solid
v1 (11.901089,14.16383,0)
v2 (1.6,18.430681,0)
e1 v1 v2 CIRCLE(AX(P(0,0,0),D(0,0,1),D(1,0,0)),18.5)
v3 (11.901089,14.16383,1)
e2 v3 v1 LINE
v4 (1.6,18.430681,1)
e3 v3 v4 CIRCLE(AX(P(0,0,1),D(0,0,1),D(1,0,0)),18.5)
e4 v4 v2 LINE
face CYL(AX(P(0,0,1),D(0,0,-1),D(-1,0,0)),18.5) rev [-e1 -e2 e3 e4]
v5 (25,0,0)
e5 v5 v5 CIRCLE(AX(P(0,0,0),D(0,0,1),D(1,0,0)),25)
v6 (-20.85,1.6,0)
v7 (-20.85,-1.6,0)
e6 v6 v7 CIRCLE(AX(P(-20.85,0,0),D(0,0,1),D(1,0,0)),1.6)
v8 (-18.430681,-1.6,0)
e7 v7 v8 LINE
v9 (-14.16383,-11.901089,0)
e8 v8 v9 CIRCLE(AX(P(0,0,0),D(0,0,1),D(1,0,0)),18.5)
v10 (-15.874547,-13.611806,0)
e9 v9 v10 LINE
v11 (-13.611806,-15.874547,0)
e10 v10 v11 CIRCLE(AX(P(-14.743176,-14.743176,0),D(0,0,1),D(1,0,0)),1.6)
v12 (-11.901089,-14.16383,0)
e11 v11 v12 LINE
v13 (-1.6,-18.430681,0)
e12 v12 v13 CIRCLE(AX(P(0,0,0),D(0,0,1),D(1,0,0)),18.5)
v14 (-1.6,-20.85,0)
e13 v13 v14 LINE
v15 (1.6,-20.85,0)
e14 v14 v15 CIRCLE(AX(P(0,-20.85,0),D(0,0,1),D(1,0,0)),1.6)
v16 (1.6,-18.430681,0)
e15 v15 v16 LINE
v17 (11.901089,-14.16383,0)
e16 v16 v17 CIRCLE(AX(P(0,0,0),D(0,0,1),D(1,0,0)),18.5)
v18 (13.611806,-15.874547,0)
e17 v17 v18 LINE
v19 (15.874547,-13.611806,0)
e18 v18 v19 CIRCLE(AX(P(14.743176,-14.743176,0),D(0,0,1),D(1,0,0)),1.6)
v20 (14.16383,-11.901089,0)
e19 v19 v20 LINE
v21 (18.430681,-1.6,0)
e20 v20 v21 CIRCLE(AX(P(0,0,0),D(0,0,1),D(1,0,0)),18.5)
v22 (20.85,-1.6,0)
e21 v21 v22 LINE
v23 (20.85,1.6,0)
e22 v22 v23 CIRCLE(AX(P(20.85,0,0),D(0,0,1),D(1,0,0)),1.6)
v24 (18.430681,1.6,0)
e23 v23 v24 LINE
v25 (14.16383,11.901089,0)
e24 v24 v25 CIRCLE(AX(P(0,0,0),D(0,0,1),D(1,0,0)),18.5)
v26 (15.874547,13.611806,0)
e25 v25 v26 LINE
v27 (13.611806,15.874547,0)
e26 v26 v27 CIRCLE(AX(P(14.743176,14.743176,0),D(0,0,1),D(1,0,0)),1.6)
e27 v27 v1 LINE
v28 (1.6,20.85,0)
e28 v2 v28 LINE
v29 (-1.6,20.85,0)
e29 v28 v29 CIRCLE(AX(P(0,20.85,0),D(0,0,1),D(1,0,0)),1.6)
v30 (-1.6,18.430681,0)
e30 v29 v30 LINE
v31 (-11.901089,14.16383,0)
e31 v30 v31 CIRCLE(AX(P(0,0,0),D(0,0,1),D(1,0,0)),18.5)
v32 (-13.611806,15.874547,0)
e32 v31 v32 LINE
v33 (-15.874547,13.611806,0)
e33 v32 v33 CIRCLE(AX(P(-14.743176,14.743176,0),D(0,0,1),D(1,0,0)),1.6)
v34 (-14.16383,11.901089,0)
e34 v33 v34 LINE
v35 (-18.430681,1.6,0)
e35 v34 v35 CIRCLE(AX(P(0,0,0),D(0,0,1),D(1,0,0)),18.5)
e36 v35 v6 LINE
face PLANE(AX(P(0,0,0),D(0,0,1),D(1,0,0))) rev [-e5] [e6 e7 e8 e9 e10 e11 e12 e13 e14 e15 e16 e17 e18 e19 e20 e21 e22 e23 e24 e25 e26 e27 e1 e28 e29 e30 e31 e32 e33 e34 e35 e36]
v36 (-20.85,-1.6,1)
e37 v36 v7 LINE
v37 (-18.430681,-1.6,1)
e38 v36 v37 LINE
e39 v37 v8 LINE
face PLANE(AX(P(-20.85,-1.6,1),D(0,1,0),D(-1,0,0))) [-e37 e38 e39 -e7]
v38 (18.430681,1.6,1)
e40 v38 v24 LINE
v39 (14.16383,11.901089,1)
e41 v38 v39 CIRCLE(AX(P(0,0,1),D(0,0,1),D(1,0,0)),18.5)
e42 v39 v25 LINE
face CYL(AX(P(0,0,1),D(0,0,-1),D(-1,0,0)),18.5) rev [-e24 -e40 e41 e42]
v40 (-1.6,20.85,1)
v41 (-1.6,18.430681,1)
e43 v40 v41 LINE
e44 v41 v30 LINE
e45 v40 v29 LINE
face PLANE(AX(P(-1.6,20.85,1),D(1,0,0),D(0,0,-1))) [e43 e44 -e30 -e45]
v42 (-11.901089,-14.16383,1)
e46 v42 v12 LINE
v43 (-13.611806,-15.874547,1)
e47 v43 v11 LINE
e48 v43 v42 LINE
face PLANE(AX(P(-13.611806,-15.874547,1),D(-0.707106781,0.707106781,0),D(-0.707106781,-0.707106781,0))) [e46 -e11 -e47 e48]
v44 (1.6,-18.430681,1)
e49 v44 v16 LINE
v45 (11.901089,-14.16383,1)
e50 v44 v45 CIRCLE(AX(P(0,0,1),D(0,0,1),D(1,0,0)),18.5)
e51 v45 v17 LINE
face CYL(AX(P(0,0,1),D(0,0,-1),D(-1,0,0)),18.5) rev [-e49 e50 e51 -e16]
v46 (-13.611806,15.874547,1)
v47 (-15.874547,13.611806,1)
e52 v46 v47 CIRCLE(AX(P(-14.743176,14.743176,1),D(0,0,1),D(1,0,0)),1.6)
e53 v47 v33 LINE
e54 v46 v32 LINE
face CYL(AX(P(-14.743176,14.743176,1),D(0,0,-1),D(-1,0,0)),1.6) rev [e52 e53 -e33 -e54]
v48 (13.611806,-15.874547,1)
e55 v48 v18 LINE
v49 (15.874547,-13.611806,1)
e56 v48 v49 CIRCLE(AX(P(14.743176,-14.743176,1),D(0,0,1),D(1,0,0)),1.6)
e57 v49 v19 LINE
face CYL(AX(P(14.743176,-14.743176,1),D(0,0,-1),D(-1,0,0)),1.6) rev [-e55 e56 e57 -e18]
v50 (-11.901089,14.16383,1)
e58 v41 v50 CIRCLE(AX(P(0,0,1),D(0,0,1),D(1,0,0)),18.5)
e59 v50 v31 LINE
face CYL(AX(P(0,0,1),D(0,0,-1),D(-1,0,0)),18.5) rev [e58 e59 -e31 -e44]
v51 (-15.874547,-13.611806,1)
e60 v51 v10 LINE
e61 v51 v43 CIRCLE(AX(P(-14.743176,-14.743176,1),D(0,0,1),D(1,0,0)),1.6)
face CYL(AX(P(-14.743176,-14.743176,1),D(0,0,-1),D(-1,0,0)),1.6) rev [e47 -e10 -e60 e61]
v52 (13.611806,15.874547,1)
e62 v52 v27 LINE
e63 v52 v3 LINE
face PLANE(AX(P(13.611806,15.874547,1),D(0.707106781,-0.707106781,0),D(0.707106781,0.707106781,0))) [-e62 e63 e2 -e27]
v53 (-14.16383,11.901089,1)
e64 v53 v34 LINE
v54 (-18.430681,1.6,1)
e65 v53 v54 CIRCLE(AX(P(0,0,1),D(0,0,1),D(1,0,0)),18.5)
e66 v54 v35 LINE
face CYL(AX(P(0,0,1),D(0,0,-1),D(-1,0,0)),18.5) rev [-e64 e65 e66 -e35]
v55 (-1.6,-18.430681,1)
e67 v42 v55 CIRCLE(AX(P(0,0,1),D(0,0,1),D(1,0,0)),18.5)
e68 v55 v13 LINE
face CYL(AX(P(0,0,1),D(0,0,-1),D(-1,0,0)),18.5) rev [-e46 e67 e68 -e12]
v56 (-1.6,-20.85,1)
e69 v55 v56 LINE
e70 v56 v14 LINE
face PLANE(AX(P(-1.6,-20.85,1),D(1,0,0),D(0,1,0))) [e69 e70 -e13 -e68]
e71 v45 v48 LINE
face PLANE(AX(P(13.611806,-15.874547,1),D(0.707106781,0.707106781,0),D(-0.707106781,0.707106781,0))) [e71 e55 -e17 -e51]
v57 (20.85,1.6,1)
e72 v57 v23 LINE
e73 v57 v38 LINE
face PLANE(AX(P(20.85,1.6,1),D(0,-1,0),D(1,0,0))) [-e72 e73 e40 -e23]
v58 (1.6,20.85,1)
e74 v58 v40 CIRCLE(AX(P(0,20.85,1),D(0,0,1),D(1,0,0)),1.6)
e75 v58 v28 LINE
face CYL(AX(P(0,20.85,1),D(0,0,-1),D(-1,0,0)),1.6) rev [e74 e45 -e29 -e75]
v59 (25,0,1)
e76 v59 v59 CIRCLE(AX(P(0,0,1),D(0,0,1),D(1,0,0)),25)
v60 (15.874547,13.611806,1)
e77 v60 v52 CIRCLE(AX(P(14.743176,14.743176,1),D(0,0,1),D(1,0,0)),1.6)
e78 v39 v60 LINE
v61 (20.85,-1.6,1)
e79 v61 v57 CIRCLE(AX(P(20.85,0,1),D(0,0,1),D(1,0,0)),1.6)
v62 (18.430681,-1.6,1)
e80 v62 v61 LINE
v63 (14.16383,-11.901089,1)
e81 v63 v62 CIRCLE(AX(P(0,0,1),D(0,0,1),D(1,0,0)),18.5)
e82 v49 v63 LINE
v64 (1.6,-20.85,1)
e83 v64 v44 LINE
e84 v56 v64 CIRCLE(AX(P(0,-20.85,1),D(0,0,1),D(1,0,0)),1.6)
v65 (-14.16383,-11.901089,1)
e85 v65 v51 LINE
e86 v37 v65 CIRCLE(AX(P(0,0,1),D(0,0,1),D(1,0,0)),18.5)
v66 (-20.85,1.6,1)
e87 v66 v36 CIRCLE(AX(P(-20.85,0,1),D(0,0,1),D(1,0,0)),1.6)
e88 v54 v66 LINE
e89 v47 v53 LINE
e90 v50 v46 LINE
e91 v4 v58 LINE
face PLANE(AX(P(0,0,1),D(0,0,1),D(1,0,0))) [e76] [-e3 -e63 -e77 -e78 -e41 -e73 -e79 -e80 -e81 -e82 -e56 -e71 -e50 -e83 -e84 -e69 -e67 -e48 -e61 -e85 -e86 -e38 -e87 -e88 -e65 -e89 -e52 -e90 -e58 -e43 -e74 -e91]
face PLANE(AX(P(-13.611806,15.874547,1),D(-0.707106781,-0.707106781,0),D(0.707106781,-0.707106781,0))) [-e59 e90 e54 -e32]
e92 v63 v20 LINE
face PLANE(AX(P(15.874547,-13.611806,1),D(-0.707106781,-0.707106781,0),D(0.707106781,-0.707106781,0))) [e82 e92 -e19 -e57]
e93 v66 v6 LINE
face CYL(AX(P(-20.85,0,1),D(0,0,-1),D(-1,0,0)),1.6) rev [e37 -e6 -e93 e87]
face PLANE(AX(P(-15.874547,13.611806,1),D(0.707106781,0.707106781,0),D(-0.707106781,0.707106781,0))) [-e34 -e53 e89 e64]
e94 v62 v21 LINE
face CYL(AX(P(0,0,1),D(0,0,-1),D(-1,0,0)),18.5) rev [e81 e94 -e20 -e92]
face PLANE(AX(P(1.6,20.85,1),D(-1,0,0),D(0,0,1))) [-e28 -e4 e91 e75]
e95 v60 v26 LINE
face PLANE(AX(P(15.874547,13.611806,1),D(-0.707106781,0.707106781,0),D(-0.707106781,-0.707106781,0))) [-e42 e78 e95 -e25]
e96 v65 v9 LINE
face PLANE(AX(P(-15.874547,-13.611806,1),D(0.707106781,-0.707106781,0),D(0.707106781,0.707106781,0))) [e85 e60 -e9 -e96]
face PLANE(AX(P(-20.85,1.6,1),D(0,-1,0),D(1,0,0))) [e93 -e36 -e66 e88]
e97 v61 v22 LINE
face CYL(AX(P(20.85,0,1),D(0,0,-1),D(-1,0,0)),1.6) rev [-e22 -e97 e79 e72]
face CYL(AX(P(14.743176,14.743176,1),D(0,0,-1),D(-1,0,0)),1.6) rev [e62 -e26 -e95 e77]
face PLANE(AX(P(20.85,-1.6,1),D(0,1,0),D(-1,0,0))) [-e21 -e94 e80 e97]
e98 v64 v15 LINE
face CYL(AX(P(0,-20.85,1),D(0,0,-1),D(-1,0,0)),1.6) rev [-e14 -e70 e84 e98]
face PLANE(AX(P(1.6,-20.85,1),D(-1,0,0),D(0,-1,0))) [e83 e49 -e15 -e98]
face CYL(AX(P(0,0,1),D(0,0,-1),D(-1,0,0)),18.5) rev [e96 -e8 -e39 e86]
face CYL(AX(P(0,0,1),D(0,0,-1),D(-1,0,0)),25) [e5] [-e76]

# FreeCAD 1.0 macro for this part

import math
import FreeCAD as App
import Part
import Sketcher

V = App.Vector
Q = App.Units.Quantity

doc = App.newDocument("Part")
body = doc.addObject("PartDesign::Body", "Body")

sketch1 = doc.addObject("Sketcher::SketchObject", "Sketch")
body.addObject(sketch1)
sketch1.AttachmentSupport = (doc.XY_Plane, [""])
sketch1.MapMode = "FlatFace"
sketch1.addGeometry([
    Part.Circle(V(0, 0, 0), V(0, 0, 1), 25),
    Part.LineSegment(V(-1.6, 18.4, 0), V(-1.6, 20.9, 0)),
    Part.ArcOfCircle(Part.Circle(V(0, 20.9, 0), V(0, 0, 1), 1.6), math.radians(0), math.radians(180)),
    Part.LineSegment(V(1.6, 20.9, 0), V(1.6, 18.4, 0)),
    Part.ArcOfCircle(Part.Circle(V(0, 0, 0), V(0, 0, 1), 18.5), math.radians(50), math.radians(85)),
    Part.LineSegment(V(11.9, 14.2, 0), V(13.6, 15.9, 0)),
    Part.ArcOfCircle(Part.Circle(V(14.7, 14.7, 0), V(0, 0, 1), 1.6), math.radians(-45), math.radians(135)),
    Part.LineSegment(V(15.9, 13.6, 0), V(14.2, 11.9, 0)),
    Part.ArcOfCircle(Part.Circle(V(0, 0, 0), V(0, 0, 1), 18.5), math.radians(5), math.radians(40)),
    Part.LineSegment(V(18.4, 1.6, 0), V(20.9, 1.6, 0)),
    Part.ArcOfCircle(Part.Circle(V(20.9, 0, 0), V(0, 0, 1), 1.6), math.radians(-90), math.radians(90)),
    Part.LineSegment(V(20.9, -1.6, 0), V(18.4, -1.6, 0)),
    Part.ArcOfCircle(Part.Circle(V(0, 0, 0), V(0, 0, 1), 18.5), math.radians(-40), math.radians(-5)),
    Part.LineSegment(V(14.2, -11.9, 0), V(15.9, -13.6, 0)),
    Part.ArcOfCircle(Part.Circle(V(14.7, -14.7, 0), V(0, 0, 1), 1.6), math.radians(-135), math.radians(45)),
    Part.LineSegment(V(13.6, -15.9, 0), V(11.9, -14.2, 0)),
    Part.ArcOfCircle(Part.Circle(V(0, 0, 0), V(0, 0, 1), 18.5), math.radians(-85), math.radians(-50)),
    Part.LineSegment(V(1.6, -18.4, 0), V(1.6, -20.9, 0)),
    Part.ArcOfCircle(Part.Circle(V(0, -20.9, 0), V(0, 0, 1), 1.6), math.radians(180), math.radians(360)),
    Part.LineSegment(V(-1.6, -20.9, 0), V(-1.6, -18.4, 0)),
    Part.ArcOfCircle(Part.Circle(V(0, 0, 0), V(0, 0, 1), 18.5), math.radians(-130), math.radians(-95)),
    Part.LineSegment(V(-11.9, -14.2, 0), V(-13.6, -15.9, 0)),
    Part.ArcOfCircle(Part.Circle(V(-14.7, -14.7, 0), V(0, 0, 1), 1.6), math.radians(135), math.radians(315)),
    Part.LineSegment(V(-15.9, -13.6, 0), V(-14.2, -11.9, 0)),
    Part.ArcOfCircle(Part.Circle(V(0, 0, 0), V(0, 0, 1), 18.5), math.radians(-175), math.radians(-140)),
    Part.LineSegment(V(-18.4, -1.6, 0), V(-20.9, -1.6, 0)),
    Part.ArcOfCircle(Part.Circle(V(-20.9, 0, 0), V(0, 0, 1), 1.6), math.radians(90), math.radians(270)),
    Part.LineSegment(V(-20.9, 1.6, 0), V(-18.4, 1.6, 0)),
    Part.ArcOfCircle(Part.Circle(V(0, 0, 0), V(0, 0, 1), 18.5), math.radians(140), math.radians(175)),
    Part.LineSegment(V(-14.2, 11.9, 0), V(-15.9, 13.6, 0)),
    Part.ArcOfCircle(Part.Circle(V(-14.7, 14.7, 0), V(0, 0, 1), 1.6), math.radians(45), math.radians(225)),
    Part.LineSegment(V(-13.6, 15.9, 0), V(-11.9, 14.2, 0)),
    Part.ArcOfCircle(Part.Circle(V(0, 0, 0), V(0, 0, 1), 18.5), math.radians(95), math.radians(130)),
], False)
sketch1.addConstraint([
    Sketcher.Constraint("Tangent", 1, 2, 2, 2),
    Sketcher.Constraint("Tangent", 2, 1, 3, 1),
    Sketcher.Constraint("Coincident", 3, 2, 4, 2),
    Sketcher.Constraint("Coincident", 4, 1, 5, 1),
    Sketcher.Constraint("Tangent", 5, 2, 6, 2),
    Sketcher.Constraint("Tangent", 6, 1, 7, 1),
    Sketcher.Constraint("Coincident", 7, 2, 8, 2),
    Sketcher.Constraint("Coincident", 8, 1, 9, 1),
    Sketcher.Constraint("Tangent", 9, 2, 10, 2),
    Sketcher.Constraint("Tangent", 10, 1, 11, 1),
    Sketcher.Constraint("Coincident", 11, 2, 12, 2),
    Sketcher.Constraint("Coincident", 12, 1, 13, 1),
    Sketcher.Constraint("Tangent", 13, 2, 14, 2),
    Sketcher.Constraint("Tangent", 14, 1, 15, 1),
    Sketcher.Constraint("Coincident", 15, 2, 16, 2),
    Sketcher.Constraint("Coincident", 16, 1, 17, 1),
    Sketcher.Constraint("Tangent", 17, 2, 18, 2),
    Sketcher.Constraint("Tangent", 18, 1, 19, 1),
    Sketcher.Constraint("Coincident", 19, 2, 20, 2),
    Sketcher.Constraint("Coincident", 20, 1, 21, 1),
    Sketcher.Constraint("Tangent", 21, 2, 22, 2),
    Sketcher.Constraint("Tangent", 22, 1, 23, 1),
    Sketcher.Constraint("Coincident", 23, 2, 24, 2),
    Sketcher.Constraint("Coincident", 24, 1, 25, 1),
    Sketcher.Constraint("Tangent", 25, 2, 26, 2),
    Sketcher.Constraint("Tangent", 26, 1, 27, 1),
    Sketcher.Constraint("Coincident", 27, 2, 28, 2),
    Sketcher.Constraint("Coincident", 28, 1, 29, 1),
    Sketcher.Constraint("Tangent", 29, 2, 30, 2),
    Sketcher.Constraint("Tangent", 30, 1, 31, 1),
    Sketcher.Constraint("Coincident", 31, 2, 32, 2),
    Sketcher.Constraint("Coincident", 32, 1, 1, 1),
    Sketcher.Constraint("Vertical", 1),
    Sketcher.Constraint("Vertical", 3),
    Sketcher.Constraint("Horizontal", 9),
    Sketcher.Constraint("Horizontal", 11),
    Sketcher.Constraint("Vertical", 17),
    Sketcher.Constraint("Vertical", 19),
    Sketcher.Constraint("Horizontal", 25),
    Sketcher.Constraint("Horizontal", 27),
    Sketcher.Constraint("Coincident", 0, 3, -1, 1),
    Sketcher.Constraint("Coincident", 4, 3, -1, 1),
    Sketcher.Constraint("Coincident", 8, 3, -1, 1),
    Sketcher.Constraint("Coincident", 12, 3, -1, 1),
    Sketcher.Constraint("Coincident", 16, 3, -1, 1),
    Sketcher.Constraint("Coincident", 20, 3, -1, 1),
    Sketcher.Constraint("Coincident", 24, 3, -1, 1),
    Sketcher.Constraint("Coincident", 28, 3, -1, 1),
    Sketcher.Constraint("Coincident", 32, 3, -1, 1),
    Sketcher.Constraint("Equal", 2, 6),
    Sketcher.Constraint("Equal", 4, 8),
    Sketcher.Constraint("Equal", 6, 10),
    Sketcher.Constraint("Equal", 8, 12),
    Sketcher.Constraint("Equal", 10, 14),
    Sketcher.Constraint("Equal", 12, 16),
    Sketcher.Constraint("Equal", 14, 18),
    Sketcher.Constraint("Equal", 16, 20),
    Sketcher.Constraint("Equal", 18, 22),
    Sketcher.Constraint("Equal", 20, 24),
    Sketcher.Constraint("Equal", 22, 26),
    Sketcher.Constraint("Equal", 24, 28),
    Sketcher.Constraint("Equal", 26, 30),
    Sketcher.Constraint("Equal", 28, 32),
    Sketcher.Constraint("Symmetric", 2, 3, 18, 3, -1, 1),
    Sketcher.Constraint("Symmetric", 6, 3, 22, 3, -1, 1),
    Sketcher.Constraint("Symmetric", 10, 3, 26, 3, -1, 1),
    Sketcher.Constraint("Symmetric", 14, 3, 30, 3, -1, 1),
    Sketcher.Constraint("Symmetric", 14, 3, 22, 3, -2),
    Sketcher.Constraint("PointOnObject", 2, 3, -2),
    Sketcher.Constraint("PointOnObject", 10, 3, -1),
    Sketcher.Constraint("Parallel", 5, 7),
    Sketcher.Constraint("Perpendicular", 7, 13),
    Sketcher.Constraint("Parallel", 13, 15),
    Sketcher.Constraint("Perpendicular", 15, 21),
    Sketcher.Constraint("Parallel", 21, 23),
    Sketcher.Constraint("Perpendicular", 23, 29),
    Sketcher.Constraint("Parallel", 29, 31),
    Sketcher.Constraint("Horizontal", 15, 2, 20, 1),
    Sketcher.Constraint("Equal", 27, 1),
    Sketcher.Constraint("Equal", 5, 7),
    Sketcher.Constraint("Diameter", 0, Q("50 mm")),
    Sketcher.Constraint("Radius", 2, Q("1.6 mm")),
    Sketcher.Constraint("Radius", 4, Q("18.5 mm")),
    Sketcher.Constraint("DistanceY", -1, 1, 2, 3, Q("20.85 mm")),
    Sketcher.Constraint("Distance", 5, Q("2.419319 mm")),
])
pad1 = doc.addObject("PartDesign::Pad", "Pad")
body.addObject(pad1)
pad1.Profile = sketch1
pad1.Length = 1

doc.recompute()
